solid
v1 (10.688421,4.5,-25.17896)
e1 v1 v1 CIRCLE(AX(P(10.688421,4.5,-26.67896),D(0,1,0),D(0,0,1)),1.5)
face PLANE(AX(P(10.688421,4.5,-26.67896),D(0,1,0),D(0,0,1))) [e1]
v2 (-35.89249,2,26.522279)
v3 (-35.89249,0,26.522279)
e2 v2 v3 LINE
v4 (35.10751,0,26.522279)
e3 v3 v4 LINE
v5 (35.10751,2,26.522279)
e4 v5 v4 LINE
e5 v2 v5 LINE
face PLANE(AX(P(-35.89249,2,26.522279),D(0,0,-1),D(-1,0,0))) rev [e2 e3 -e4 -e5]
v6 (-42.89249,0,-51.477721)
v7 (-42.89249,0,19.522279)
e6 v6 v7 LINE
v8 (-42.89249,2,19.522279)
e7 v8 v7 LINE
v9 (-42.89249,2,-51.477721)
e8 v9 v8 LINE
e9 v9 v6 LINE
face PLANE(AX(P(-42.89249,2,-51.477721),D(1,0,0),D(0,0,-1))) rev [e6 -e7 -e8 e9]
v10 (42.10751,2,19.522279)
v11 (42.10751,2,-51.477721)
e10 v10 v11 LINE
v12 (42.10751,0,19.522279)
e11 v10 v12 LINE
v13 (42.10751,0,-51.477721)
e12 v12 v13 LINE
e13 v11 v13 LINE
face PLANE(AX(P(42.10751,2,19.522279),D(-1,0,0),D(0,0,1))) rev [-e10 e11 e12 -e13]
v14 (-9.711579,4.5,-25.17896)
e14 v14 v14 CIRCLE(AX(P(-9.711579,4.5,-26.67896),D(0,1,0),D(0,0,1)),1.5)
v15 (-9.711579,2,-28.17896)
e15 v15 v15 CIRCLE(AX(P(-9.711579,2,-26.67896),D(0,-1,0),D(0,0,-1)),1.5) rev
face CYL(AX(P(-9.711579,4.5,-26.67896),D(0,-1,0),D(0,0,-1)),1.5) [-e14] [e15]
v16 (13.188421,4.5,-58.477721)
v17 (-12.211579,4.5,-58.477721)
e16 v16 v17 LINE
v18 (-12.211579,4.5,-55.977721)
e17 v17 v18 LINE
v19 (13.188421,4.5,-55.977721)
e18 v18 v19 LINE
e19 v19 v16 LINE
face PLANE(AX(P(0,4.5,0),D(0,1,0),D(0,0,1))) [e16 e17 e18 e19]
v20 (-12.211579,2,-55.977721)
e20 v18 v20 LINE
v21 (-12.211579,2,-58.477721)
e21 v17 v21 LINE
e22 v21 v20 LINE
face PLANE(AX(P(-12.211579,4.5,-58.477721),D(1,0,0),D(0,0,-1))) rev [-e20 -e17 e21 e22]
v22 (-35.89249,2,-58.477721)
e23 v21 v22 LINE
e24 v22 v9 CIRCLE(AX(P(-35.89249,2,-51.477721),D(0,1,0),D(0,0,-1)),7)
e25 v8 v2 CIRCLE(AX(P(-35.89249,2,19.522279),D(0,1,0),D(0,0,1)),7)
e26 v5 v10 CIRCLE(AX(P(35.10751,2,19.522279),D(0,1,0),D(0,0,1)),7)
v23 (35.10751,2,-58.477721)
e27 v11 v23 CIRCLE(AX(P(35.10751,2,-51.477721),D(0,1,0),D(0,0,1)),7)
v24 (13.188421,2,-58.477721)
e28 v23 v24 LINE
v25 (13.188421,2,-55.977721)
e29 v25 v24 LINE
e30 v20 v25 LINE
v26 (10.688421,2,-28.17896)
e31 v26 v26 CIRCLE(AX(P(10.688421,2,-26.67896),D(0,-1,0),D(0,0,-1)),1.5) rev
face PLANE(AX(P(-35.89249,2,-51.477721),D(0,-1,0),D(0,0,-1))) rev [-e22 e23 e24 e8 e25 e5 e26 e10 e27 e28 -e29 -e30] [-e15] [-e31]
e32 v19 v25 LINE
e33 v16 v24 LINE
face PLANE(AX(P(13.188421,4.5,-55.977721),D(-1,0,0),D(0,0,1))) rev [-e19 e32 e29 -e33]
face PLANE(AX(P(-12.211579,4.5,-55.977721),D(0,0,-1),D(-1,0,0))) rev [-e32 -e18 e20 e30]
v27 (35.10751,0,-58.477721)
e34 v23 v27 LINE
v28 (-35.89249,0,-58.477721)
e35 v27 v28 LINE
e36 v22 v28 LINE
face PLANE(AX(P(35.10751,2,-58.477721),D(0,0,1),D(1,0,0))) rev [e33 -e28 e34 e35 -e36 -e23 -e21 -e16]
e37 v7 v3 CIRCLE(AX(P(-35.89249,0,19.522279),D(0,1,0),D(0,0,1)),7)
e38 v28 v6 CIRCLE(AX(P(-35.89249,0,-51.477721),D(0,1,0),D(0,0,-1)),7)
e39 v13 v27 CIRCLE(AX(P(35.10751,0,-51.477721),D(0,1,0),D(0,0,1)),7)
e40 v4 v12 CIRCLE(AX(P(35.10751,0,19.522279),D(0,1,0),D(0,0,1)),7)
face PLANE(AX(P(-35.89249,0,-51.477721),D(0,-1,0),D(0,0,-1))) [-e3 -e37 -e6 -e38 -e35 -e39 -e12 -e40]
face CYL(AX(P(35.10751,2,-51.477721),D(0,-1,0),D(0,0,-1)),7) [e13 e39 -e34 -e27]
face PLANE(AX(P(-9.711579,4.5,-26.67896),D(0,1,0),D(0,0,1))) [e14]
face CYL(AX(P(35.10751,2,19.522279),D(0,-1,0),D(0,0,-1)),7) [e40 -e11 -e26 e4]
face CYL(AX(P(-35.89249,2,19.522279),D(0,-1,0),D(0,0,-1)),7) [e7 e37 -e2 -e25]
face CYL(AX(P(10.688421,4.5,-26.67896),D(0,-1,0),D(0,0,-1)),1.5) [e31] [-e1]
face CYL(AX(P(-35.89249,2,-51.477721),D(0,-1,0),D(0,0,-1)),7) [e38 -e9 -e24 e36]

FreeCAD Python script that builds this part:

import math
import FreeCAD as App
import Part
import Sketcher
from FreeCAD import Vector
Q = App.Units.Quantity


def add_polygon(sketch, points):
    """Adds a closed chain of lines whose ends are joined by coincident constraints."""
    first, n = sketch.GeometryCount, len(points)
    for a, b in zip(points, points[1:] + points[:1]):
        sketch.addGeometry(Part.LineSegment(App.Vector(*a, 0), App.Vector(*b, 0)), False)
    for i in range(n):
        sketch.addConstraint(Sketcher.Constraint("Coincident", first + i, 2, first + (i + 1) % n, 1))

doc = App.newDocument("Part")
body = doc.addObject("PartDesign::Body", "Body")

sketch1 = doc.addObject("Sketcher::SketchObject", "Sketch")
body.addObject(sketch1)
sketch1.AttachmentSupport = (doc.XZ_Plane, [""])
sketch1.MapMode = "FlatFace"
sketch1.addGeometry(Part.LineSegment(Vector(-36, 27, 0), Vector(35, 27, 0)), False)
sketch1.addGeometry(Part.ArcOfCircle(Part.Circle(Vector(35, 20, 0), Vector(0, 0, 1), 7), math.radians(0), math.radians(90)), False)
sketch1.addGeometry(Part.LineSegment(Vector(42, 20, 0), Vector(42, -51, 0)), False)
sketch1.addGeometry(Part.ArcOfCircle(Part.Circle(Vector(35, -51, 0), Vector(0, 0, 1), 7), math.radians(-90), math.radians(0)), False)
sketch1.addGeometry(Part.LineSegment(Vector(35, -58, 0), Vector(-36, -58, 0)), False)
sketch1.addGeometry(Part.ArcOfCircle(Part.Circle(Vector(-36, -51, 0), Vector(0, 0, 1), 7), math.radians(-180), math.radians(-90)), False)
sketch1.addGeometry(Part.LineSegment(Vector(-43, -51, 0), Vector(-43, 20, 0)), False)
sketch1.addGeometry(Part.ArcOfCircle(Part.Circle(Vector(-36, 20, 0), Vector(0, 0, 1), 7), math.radians(90), math.radians(180)), False)
sketch1.addConstraint(Sketcher.Constraint("Tangent", 0, 2, 1, 2))
sketch1.addConstraint(Sketcher.Constraint("Tangent", 1, 1, 2, 1))
sketch1.addConstraint(Sketcher.Constraint("Tangent", 2, 2, 3, 2))
sketch1.addConstraint(Sketcher.Constraint("Tangent", 3, 1, 4, 1))
sketch1.addConstraint(Sketcher.Constraint("Tangent", 4, 2, 5, 2))
sketch1.addConstraint(Sketcher.Constraint("Tangent", 5, 1, 6, 1))
sketch1.addConstraint(Sketcher.Constraint("Tangent", 6, 2, 7, 2))
sketch1.addConstraint(Sketcher.Constraint("Tangent", 7, 1, 0, 1))
sketch1.addConstraint(Sketcher.Constraint("Horizontal", 0))
sketch1.addConstraint(Sketcher.Constraint("Vertical", 2))
sketch1.addConstraint(Sketcher.Constraint("Horizontal", 4))
sketch1.addConstraint(Sketcher.Constraint("Vertical", 6))
sketch1.addConstraint(Sketcher.Constraint("Equal", 1, 3))
sketch1.addConstraint(Sketcher.Constraint("Equal", 3, 5))
sketch1.addConstraint(Sketcher.Constraint("Equal", 5, 7))
sketch1.addConstraint(Sketcher.Constraint("Equal", 4, 2))
sketch1.addConstraint(Sketcher.Constraint("Radius", 1, Q("7 mm")))
sketch1.addConstraint(Sketcher.Constraint("DistanceX", 0, 1, 0, 2, Q("71 mm")))
sketch1.addConstraint(Sketcher.Constraint("DistanceX", -1, 1, 1, 3, Q("35.10751 mm")))
sketch1.addConstraint(Sketcher.Constraint("DistanceY", -1, 1, 1, 3, Q("19.522279 mm")))
pad1 = doc.addObject("PartDesign::Pad", "Pad")
body.addObject(pad1)
pad1.Profile = sketch1
pad1.Length = 2
pad1.Reversed = True

sketch2 = doc.addObject("Sketcher::SketchObject", "Sketch001")
body.addObject(sketch2)
sketch2.AttachmentSupport = (doc.XZ_Plane, [""])
sketch2.MapMode = "FlatFace"
sketch2.AttachmentOffset = App.Placement(Vector(0, 0, -2), App.Rotation())
sketch2.addGeometry(Part.Circle(Vector(-9.7, -26.7, 0), Vector(0, 0, 1), 1.5), False)
sketch2.addGeometry(Part.Circle(Vector(10.7, -26.7, 0), Vector(0, 0, 1), 1.5), False)
add_polygon(sketch2, [(-12.2, -58.5), (-12.2, -56), (13.2, -56), (13.2, -58.5)])
sketch2.addConstraint(Sketcher.Constraint("Vertical", 2))
sketch2.addConstraint(Sketcher.Constraint("Horizontal", 3))
sketch2.addConstraint(Sketcher.Constraint("Vertical", 4))
sketch2.addConstraint(Sketcher.Constraint("Horizontal", 5))
sketch2.addConstraint(Sketcher.Constraint("Equal", 0, 1))
sketch2.addConstraint(Sketcher.Constraint("Horizontal", 0, 3, 1, 3))
sketch2.addConstraint(Sketcher.Constraint("Diameter", 0, Q("3 mm")))
sketch2.addConstraint(Sketcher.Constraint("DistanceX", 3, 1, 3, 2, Q("25.4 mm")))
sketch2.addConstraint(Sketcher.Constraint("DistanceY", 2, 1, 2, 2, Q("2.5 mm")))
sketch2.addConstraint(Sketcher.Constraint("DistanceX", 0, 3, 1, 3, Q("20.4 mm")))
sketch2.addConstraint(Sketcher.Constraint("DistanceX", 2, 2, 0, 3, Q("2.5 mm")))
sketch2.addConstraint(Sketcher.Constraint("DistanceX", 0, 3, -1, 1, Q("9.711579 mm")))
sketch2.addConstraint(Sketcher.Constraint("DistanceY", 0, 3, -1, 1, Q("26.67896 mm")))
sketch2.addConstraint(Sketcher.Constraint("DistanceY", 2, 2, -1, 1, Q("55.977721 mm")))
pad2 = doc.addObject("PartDesign::Pad", "Pad001")
body.addObject(pad2)
pad2.Profile = sketch2
pad2.Length = 2.5
pad2.Reversed = True

doc.recompute()
